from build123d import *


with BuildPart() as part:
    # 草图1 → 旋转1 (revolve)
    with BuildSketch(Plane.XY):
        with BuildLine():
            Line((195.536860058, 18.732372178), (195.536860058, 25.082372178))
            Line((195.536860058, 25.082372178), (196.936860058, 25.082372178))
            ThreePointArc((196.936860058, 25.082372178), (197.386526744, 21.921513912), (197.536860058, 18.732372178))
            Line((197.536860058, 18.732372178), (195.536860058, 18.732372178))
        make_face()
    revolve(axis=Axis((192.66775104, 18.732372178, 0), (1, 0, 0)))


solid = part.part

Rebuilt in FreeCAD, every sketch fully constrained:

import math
import FreeCAD as App
import Part
import Sketcher

doc = App.newDocument("Part")
body = doc.addObject("PartDesign::Body", "Body")

# Sketch on XY plane
sketch1 = doc.addObject("Sketcher::SketchObject", "Sketch")
body.addObject(sketch1)
sketch1.AttachmentSupport = (doc.XY_Plane, [""])
sketch1.MapMode = "FlatFace"
sketch1.addGeometry([
    Part.LineSegment(App.Vector(195.5, 25.1, 0), App.Vector(195.5, 18.7, 0)),
    Part.LineSegment(App.Vector(195.5, 18.7, 0), App.Vector(197.5, 18.7, 0)),
    Part.ArcOfCircle(Part.Circle(App.Vector(163.6, 18.7, 0), App.Vector(0, 0, 1), 33.9), math.radians(0), math.radians(10.8)),
    Part.LineSegment(App.Vector(196.9, 25.1, 0), App.Vector(195.5, 25.1, 0)),
], False)
sketch1.addGeometry(Part.LineSegment(App.Vector(163.6, 18.7, 0), App.Vector(197.5, 18.7, 0)), True)  # axis
sketch1.addConstraint([
    Sketcher.Constraint("Coincident", 0, 2, 1, 1),
    Sketcher.Constraint("Coincident", 1, 2, 2, 1),
    Sketcher.Constraint("Coincident", 2, 2, 3, 1),
    Sketcher.Constraint("Coincident", 3, 2, 0, 1),
    Sketcher.Constraint("Vertical", 0),
    Sketcher.Constraint("Horizontal", 1),
    Sketcher.Constraint("Horizontal", 3),
    Sketcher.Constraint("Horizontal", 4),
    Sketcher.Constraint("Coincident", 4, 1, 2, 3),
    Sketcher.Constraint("Coincident", 4, 2, 1, 2),
    Sketcher.Constraint("DistanceX", 1, 1, 1, 2, 2.0),
    Sketcher.Constraint("DistanceX", 3, 2, 3, 1, 1.4),
    Sketcher.Constraint("DistanceY", 0, 2, 0, 1, 6.35),
    Sketcher.Constraint("DistanceX", -1, 1, 0, 2, 195.53686),
    Sketcher.Constraint("DistanceY", -1, 1, 2, 3, 18.732372),
])
revolution = doc.addObject("PartDesign::Revolution", "Revolution")
body.addObject(revolution)
revolution.Profile = sketch1
revolution.ReferenceAxis = (sketch1, ["Axis0"])
revolution.Angle = 360

doc.recompute()
